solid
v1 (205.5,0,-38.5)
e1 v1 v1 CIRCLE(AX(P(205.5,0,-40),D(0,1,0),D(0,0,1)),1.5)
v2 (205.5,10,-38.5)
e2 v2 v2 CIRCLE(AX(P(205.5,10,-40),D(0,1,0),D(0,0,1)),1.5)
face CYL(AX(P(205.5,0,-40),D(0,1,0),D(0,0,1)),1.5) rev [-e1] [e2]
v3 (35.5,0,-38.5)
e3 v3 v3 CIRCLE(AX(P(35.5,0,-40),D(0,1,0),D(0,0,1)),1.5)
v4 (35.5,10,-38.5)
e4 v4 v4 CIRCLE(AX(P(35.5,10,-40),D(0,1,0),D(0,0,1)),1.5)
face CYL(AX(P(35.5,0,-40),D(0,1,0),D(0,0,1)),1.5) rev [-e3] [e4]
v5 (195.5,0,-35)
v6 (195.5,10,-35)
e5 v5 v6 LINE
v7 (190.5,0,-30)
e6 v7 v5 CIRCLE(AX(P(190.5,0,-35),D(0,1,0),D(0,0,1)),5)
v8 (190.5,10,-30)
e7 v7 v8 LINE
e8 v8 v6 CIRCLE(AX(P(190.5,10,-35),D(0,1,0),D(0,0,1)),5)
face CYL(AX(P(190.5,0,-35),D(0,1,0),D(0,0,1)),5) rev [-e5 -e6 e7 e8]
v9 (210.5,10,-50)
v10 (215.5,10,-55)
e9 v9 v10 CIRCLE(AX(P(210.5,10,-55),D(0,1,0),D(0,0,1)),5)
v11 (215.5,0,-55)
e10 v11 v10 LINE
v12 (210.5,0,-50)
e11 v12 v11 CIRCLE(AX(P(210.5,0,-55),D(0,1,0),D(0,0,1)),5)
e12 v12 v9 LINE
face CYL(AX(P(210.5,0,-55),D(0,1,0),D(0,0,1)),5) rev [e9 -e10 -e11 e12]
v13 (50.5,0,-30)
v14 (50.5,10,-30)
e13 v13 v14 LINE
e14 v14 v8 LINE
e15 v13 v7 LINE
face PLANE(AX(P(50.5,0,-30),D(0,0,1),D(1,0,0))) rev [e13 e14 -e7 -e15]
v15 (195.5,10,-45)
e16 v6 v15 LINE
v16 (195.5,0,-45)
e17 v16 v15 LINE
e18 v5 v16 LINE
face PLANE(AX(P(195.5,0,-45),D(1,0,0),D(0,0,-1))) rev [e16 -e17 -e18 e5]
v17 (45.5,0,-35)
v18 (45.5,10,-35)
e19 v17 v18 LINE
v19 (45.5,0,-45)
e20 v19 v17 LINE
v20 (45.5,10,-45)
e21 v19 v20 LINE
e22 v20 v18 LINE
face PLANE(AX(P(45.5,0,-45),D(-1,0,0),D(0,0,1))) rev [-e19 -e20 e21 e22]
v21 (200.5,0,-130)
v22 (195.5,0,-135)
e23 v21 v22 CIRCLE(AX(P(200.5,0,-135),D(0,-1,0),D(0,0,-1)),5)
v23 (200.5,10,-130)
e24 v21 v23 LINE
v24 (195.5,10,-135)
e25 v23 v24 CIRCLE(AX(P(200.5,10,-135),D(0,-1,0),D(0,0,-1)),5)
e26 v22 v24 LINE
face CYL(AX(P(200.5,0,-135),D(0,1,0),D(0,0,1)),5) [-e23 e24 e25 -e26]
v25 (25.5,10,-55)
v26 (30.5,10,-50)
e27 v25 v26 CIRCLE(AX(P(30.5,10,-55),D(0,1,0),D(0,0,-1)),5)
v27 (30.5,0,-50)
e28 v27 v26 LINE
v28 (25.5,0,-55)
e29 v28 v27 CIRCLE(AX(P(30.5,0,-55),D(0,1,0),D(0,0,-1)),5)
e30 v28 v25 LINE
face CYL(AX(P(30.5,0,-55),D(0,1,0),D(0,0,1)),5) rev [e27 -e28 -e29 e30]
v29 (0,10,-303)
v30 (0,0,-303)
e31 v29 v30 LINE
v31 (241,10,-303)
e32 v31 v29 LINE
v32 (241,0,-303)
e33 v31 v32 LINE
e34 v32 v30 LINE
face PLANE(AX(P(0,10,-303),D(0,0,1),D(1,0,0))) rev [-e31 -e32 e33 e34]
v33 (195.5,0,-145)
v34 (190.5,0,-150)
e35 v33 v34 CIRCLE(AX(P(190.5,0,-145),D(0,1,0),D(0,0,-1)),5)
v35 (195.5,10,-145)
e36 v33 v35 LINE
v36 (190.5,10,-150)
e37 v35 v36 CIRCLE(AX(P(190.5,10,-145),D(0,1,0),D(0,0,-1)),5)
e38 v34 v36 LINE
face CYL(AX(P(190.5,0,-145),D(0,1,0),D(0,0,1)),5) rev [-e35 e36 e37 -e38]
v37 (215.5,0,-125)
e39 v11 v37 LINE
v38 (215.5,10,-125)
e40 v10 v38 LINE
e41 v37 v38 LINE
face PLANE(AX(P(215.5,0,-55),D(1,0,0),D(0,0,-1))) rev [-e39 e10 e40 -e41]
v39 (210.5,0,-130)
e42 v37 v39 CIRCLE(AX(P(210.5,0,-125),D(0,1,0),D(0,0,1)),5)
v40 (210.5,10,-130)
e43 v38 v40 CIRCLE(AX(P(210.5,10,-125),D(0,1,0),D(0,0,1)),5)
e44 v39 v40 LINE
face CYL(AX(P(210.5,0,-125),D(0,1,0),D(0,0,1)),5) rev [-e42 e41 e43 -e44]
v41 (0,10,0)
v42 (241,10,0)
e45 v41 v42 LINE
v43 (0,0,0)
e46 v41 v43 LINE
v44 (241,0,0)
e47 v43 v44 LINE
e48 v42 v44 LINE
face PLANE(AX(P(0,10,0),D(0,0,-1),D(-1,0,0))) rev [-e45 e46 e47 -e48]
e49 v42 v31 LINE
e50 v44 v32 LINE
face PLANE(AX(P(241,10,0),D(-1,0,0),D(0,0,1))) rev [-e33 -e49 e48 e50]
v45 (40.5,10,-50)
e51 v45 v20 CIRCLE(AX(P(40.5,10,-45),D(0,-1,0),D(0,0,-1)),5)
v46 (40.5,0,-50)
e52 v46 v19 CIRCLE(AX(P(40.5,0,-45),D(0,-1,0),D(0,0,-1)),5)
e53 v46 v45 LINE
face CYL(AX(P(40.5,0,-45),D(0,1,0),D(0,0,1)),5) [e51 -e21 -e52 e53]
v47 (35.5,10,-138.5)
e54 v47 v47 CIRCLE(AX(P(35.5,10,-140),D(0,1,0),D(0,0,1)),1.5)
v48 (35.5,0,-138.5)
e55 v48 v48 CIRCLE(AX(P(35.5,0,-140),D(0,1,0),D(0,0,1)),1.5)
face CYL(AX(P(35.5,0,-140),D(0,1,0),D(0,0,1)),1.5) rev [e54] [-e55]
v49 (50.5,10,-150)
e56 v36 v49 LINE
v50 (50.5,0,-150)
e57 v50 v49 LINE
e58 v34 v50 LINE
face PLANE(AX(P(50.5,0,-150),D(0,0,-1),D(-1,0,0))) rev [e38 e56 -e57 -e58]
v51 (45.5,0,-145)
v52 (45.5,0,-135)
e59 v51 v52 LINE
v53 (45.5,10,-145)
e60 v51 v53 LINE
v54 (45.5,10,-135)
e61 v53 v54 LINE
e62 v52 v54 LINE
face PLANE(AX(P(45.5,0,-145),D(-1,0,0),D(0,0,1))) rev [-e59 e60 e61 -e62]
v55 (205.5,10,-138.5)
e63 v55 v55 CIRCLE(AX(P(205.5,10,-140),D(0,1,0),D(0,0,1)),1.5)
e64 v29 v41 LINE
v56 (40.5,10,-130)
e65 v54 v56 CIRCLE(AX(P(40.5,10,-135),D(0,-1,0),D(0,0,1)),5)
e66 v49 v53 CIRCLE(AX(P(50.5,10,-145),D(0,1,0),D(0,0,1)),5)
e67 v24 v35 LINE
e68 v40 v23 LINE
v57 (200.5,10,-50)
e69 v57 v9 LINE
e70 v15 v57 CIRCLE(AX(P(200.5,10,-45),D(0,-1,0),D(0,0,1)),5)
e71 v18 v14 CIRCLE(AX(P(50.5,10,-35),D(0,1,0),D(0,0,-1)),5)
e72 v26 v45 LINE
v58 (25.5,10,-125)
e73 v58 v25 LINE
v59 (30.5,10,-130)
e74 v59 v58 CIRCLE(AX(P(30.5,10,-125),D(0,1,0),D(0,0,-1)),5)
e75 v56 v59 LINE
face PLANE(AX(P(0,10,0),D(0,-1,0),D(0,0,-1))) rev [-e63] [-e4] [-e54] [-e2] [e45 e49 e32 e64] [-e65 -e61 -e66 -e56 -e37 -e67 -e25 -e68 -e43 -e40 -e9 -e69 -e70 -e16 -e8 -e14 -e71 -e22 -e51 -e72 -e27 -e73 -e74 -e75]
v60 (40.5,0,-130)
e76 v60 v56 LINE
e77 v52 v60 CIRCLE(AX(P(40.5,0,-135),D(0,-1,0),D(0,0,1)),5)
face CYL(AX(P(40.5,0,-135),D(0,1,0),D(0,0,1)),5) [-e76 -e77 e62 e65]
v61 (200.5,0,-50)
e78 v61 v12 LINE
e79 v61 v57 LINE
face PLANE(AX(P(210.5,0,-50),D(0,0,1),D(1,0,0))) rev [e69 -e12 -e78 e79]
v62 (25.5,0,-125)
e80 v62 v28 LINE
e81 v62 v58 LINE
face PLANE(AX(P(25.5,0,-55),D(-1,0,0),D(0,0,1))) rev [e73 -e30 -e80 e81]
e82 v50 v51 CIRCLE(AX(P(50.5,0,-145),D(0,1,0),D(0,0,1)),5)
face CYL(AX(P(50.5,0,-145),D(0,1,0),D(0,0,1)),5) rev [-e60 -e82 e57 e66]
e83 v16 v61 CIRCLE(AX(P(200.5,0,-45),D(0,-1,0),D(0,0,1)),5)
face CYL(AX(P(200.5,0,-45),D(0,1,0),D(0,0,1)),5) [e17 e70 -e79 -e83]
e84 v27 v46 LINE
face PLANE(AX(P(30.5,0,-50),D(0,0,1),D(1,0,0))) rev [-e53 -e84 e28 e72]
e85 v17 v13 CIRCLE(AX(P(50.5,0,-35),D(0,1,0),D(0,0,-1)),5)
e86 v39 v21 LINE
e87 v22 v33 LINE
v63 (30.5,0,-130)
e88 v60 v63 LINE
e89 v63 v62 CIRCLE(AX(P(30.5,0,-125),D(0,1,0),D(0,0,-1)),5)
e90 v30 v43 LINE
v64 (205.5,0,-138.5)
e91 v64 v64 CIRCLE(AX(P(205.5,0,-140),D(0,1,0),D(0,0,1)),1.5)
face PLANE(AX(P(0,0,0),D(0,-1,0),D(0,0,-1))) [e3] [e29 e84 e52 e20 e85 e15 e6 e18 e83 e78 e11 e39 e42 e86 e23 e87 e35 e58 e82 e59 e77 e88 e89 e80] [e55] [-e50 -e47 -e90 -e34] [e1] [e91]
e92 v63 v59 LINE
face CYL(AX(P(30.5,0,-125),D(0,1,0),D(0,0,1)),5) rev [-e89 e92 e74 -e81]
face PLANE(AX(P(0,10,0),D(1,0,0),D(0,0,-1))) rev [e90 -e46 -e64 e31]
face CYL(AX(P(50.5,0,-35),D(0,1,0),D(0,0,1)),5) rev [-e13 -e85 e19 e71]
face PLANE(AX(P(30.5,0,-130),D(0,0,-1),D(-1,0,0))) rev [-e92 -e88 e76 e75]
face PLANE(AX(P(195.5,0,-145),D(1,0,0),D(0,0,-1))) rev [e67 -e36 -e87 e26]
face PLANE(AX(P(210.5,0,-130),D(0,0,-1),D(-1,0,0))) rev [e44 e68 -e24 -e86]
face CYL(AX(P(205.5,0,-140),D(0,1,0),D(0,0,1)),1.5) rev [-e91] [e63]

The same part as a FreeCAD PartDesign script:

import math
import FreeCAD as App
import Part
import Sketcher

V = App.Vector
Q = App.Units.Quantity


def add_polygon(sketch, points):
    """Adds a closed chain of lines whose ends are joined by coincident constraints."""
    first, n = sketch.GeometryCount, len(points)
    for a, b in zip(points, points[1:] + points[:1]):
        sketch.addGeometry(Part.LineSegment(App.Vector(*a, 0), App.Vector(*b, 0)), False)
    for i in range(n):
        sketch.addConstraint(Sketcher.Constraint("Coincident", first + i, 2, first + (i + 1) % n, 1))

doc = App.newDocument("Part")
body = doc.addObject("PartDesign::Body", "Body")

# Sketch on XZ plane
sketch1 = doc.addObject("Sketcher::SketchObject", "Sketch")
body.addObject(sketch1)
sketch1.AttachmentSupport = (doc.XZ_Plane, [""])
sketch1.MapMode = "FlatFace"
add_polygon(sketch1, [(0, -303), (0, 0), (241, 0), (241, -303)])  # lines 0-3
sketch1.addConstraint(Sketcher.Constraint("Vertical", 0))
sketch1.addConstraint(Sketcher.Constraint("Horizontal", 1))
sketch1.addConstraint(Sketcher.Constraint("Vertical", 2))
sketch1.addConstraint(Sketcher.Constraint("Horizontal", 3))
sketch1.addConstraint(Sketcher.Constraint("Coincident", 0, 2, -1, 1))
sketch1.addConstraint(Sketcher.Constraint("DistanceX", 1, 1, 1, 2, Q("241 mm")))
sketch1.addConstraint(Sketcher.Constraint("DistanceY", 0, 1, 0, 2, Q("303 mm")))
pad1 = doc.addObject("PartDesign::Pad", "Pad")
body.addObject(pad1)
pad1.Profile = sketch1
pad1.Length = 10
pad1.Reversed = True

# Sketch on XZ plane
sketch2 = doc.addObject("Sketcher::SketchObject", "Sketch001")
body.addObject(sketch2)
sketch2.AttachmentSupport = (doc.XZ_Plane, [""])
sketch2.MapMode = "FlatFace"
sketch2.AttachmentOffset = App.Placement(V(0, 0, -10), App.Rotation())
sketch2.addGeometry(Part.LineSegment(V(190, -150, 0), V(50, -150, 0)), False)
sketch2.addGeometry(Part.ArcOfCircle(Part.Circle(V(50, -145, 0), V(0, 0, 1), 5), math.radians(180), math.radians(270)), False)
sketch2.addGeometry(Part.LineSegment(V(46, -145, 0), V(46, -135, 0)), False)
sketch2.addGeometry(Part.ArcOfCircle(Part.Circle(V(40, -135, 0), V(0, 0, 1), 5), math.radians(0), math.radians(90)), False)
sketch2.addGeometry(Part.LineSegment(V(40, -130, 0), V(30, -130, 0)), False)
sketch2.addGeometry(Part.ArcOfCircle(Part.Circle(V(30, -125, 0), V(0, 0, 1), 5), math.radians(180), math.radians(270)), False)
sketch2.addGeometry(Part.LineSegment(V(26, -125, 0), V(26, -55, 0)), False)
sketch2.addGeometry(Part.ArcOfCircle(Part.Circle(V(30, -55, 0), V(0, 0, 1), 5), math.radians(90), math.radians(180)), False)
sketch2.addGeometry(Part.LineSegment(V(30, -50, 0), V(40, -50, 0)), False)
sketch2.addGeometry(Part.ArcOfCircle(Part.Circle(V(40, -45, 0), V(0, 0, 1), 5), math.radians(-90), math.radians(0)), False)
sketch2.addGeometry(Part.LineSegment(V(46, -45, 0), V(46, -35, 0)), False)
sketch2.addGeometry(Part.ArcOfCircle(Part.Circle(V(50, -35, 0), V(0, 0, 1), 5), math.radians(90), math.radians(180)), False)
sketch2.addGeometry(Part.LineSegment(V(50, -30, 0), V(190, -30, 0)), False)
sketch2.addGeometry(Part.ArcOfCircle(Part.Circle(V(190, -35, 0), V(0, 0, 1), 5), math.radians(0), math.radians(90)), False)
sketch2.addGeometry(Part.LineSegment(V(196, -35, 0), V(196, -45, 0)), False)
sketch2.addGeometry(Part.ArcOfCircle(Part.Circle(V(200, -45, 0), V(0, 0, 1), 5), math.radians(180), math.radians(270)), False)
sketch2.addGeometry(Part.LineSegment(V(200, -50, 0), V(210, -50, 0)), False)
sketch2.addGeometry(Part.ArcOfCircle(Part.Circle(V(210, -55, 0), V(0, 0, 1), 5), math.radians(0), math.radians(90)), False)
sketch2.addGeometry(Part.LineSegment(V(216, -55, 0), V(216, -125, 0)), False)
sketch2.addGeometry(Part.ArcOfCircle(Part.Circle(V(210, -125, 0), V(0, 0, 1), 5), math.radians(-90), math.radians(0)), False)
sketch2.addGeometry(Part.LineSegment(V(210, -130, 0), V(200, -130, 0)), False)
sketch2.addGeometry(Part.ArcOfCircle(Part.Circle(V(200, -135, 0), V(0, 0, 1), 5), math.radians(90), math.radians(180)), False)
sketch2.addGeometry(Part.LineSegment(V(196, -135, 0), V(196, -145, 0)), False)
sketch2.addGeometry(Part.ArcOfCircle(Part.Circle(V(190, -145, 0), V(0, 0, 1), 5), math.radians(-90), math.radians(0)), False)
sketch2.addConstraint(Sketcher.Constraint("Tangent", 0, 2, 1, 2))
sketch2.addConstraint(Sketcher.Constraint("Tangent", 1, 1, 2, 1))
sketch2.addConstraint(Sketcher.Constraint("Tangent", 2, 2, 3, 1))
sketch2.addConstraint(Sketcher.Constraint("Tangent", 3, 2, 4, 1))
sketch2.addConstraint(Sketcher.Constraint("Tangent", 4, 2, 5, 2))
sketch2.addConstraint(Sketcher.Constraint("Tangent", 5, 1, 6, 1))
sketch2.addConstraint(Sketcher.Constraint("Tangent", 6, 2, 7, 2))
sketch2.addConstraint(Sketcher.Constraint("Tangent", 7, 1, 8, 1))
sketch2.addConstraint(Sketcher.Constraint("Tangent", 8, 2, 9, 1))
sketch2.addConstraint(Sketcher.Constraint("Tangent", 9, 2, 10, 1))
sketch2.addConstraint(Sketcher.Constraint("Tangent", 10, 2, 11, 2))
sketch2.addConstraint(Sketcher.Constraint("Tangent", 11, 1, 12, 1))
sketch2.addConstraint(Sketcher.Constraint("Tangent", 12, 2, 13, 2))
sketch2.addConstraint(Sketcher.Constraint("Tangent", 13, 1, 14, 1))
sketch2.addConstraint(Sketcher.Constraint("Tangent", 14, 2, 15, 1))
sketch2.addConstraint(Sketcher.Constraint("Tangent", 15, 2, 16, 1))
sketch2.addConstraint(Sketcher.Constraint("Tangent", 16, 2, 17, 2))
sketch2.addConstraint(Sketcher.Constraint("Tangent", 17, 1, 18, 1))
sketch2.addConstraint(Sketcher.Constraint("Tangent", 18, 2, 19, 2))
sketch2.addConstraint(Sketcher.Constraint("Tangent", 19, 1, 20, 1))
sketch2.addConstraint(Sketcher.Constraint("Tangent", 20, 2, 21, 1))
sketch2.addConstraint(Sketcher.Constraint("Tangent", 21, 2, 22, 1))
sketch2.addConstraint(Sketcher.Constraint("Tangent", 22, 2, 23, 2))
sketch2.addConstraint(Sketcher.Constraint("Tangent", 23, 1, 0, 1))
sketch2.addConstraint(Sketcher.Constraint("Horizontal", 0))
sketch2.addConstraint(Sketcher.Constraint("Vertical", 2))
sketch2.addConstraint(Sketcher.Constraint("Horizontal", 4))
sketch2.addConstraint(Sketcher.Constraint("Vertical", 6))
sketch2.addConstraint(Sketcher.Constraint("Horizontal", 8))
sketch2.addConstraint(Sketcher.Constraint("Vertical", 10))
sketch2.addConstraint(Sketcher.Constraint("Horizontal", 12))
sketch2.addConstraint(Sketcher.Constraint("Vertical", 14))
sketch2.addConstraint(Sketcher.Constraint("Horizontal", 16))
sketch2.addConstraint(Sketcher.Constraint("Vertical", 18))
sketch2.addConstraint(Sketcher.Constraint("Horizontal", 20))
sketch2.addConstraint(Sketcher.Constraint("Vertical", 22))
sketch2.addConstraint(Sketcher.Constraint("Equal", 1, 3))
sketch2.addConstraint(Sketcher.Constraint("Equal", 3, 5))
sketch2.addConstraint(Sketcher.Constraint("Equal", 5, 7))
sketch2.addConstraint(Sketcher.Constraint("Equal", 7, 9))
sketch2.addConstraint(Sketcher.Constraint("Equal", 9, 11))
sketch2.addConstraint(Sketcher.Constraint("Equal", 11, 13))
sketch2.addConstraint(Sketcher.Constraint("Equal", 13, 15))
sketch2.addConstraint(Sketcher.Constraint("Equal", 15, 17))
sketch2.addConstraint(Sketcher.Constraint("Equal", 17, 19))
sketch2.addConstraint(Sketcher.Constraint("Equal", 19, 21))
sketch2.addConstraint(Sketcher.Constraint("Equal", 21, 23))
sketch2.addConstraint(Sketcher.Constraint("Horizontal", 9, 3, 15, 3))
sketch2.addConstraint(Sketcher.Constraint("Horizontal", 5, 3, 19, 3))
sketch2.addConstraint(Sketcher.Constraint("Vertical", 3, 3, 9, 3))
sketch2.addConstraint(Sketcher.Constraint("Vertical", 15, 3, 21, 3))
sketch2.addConstraint(Sketcher.Constraint("Equal", 8, 16))
sketch2.addConstraint(Sketcher.Constraint("Equal", 20, 2))
sketch2.addConstraint(Sketcher.Constraint("Equal", 2, 10))
sketch2.addConstraint(Sketcher.Constraint("Radius", 1, Q("5 mm")))
sketch2.addConstraint(Sketcher.Constraint("DistanceX", 0, 2, 0, 1, Q("140 mm")))
sketch2.addConstraint(Sketcher.Constraint("DistanceX", 4, 2, 4, 1, Q("10 mm")))
sketch2.addConstraint(Sketcher.Constraint("DistanceY", 6, 1, 6, 2, Q("70 mm")))
sketch2.addConstraint(Sketcher.Constraint("DistanceY", 1, 3, -1, 1, Q("145 mm")))
sketch2.addConstraint(Sketcher.Constraint("DistanceX", -1, 1, 1, 3, Q("50.5 mm")))
pocket1 = doc.addObject("PartDesign::Pocket", "Pocket")
body.addObject(pocket1)
pocket1.Profile = sketch2
pocket1.Type = "ThroughAll"
pocket1.Reversed = True

# Sketch on XZ plane
sketch3 = doc.addObject("Sketcher::SketchObject", "Sketch002")
body.addObject(sketch3)
sketch3.AttachmentSupport = (doc.XZ_Plane, [""])
sketch3.MapMode = "FlatFace"
sketch3.AttachmentOffset = App.Placement(V(0, 0, -10), App.Rotation())
sketch3.addGeometry(Part.Circle(V(205.5, -140, 0), V(0, 0, 1), 1.5), False)
sketch3.addGeometry(Part.Circle(V(35.5, -140, 0), V(0, 0, 1), 1.5), False)
sketch3.addGeometry(Part.Circle(V(35.5, -40, 0), V(0, 0, 1), 1.5), False)
sketch3.addGeometry(Part.Circle(V(205.5, -40, 0), V(0, 0, 1), 1.5), False)
sketch3.addConstraint(Sketcher.Constraint("Equal", 0, 1))
sketch3.addConstraint(Sketcher.Constraint("Equal", 1, 2))
sketch3.addConstraint(Sketcher.Constraint("Equal", 2, 3))
sketch3.addConstraint(Sketcher.Constraint("Horizontal", 0, 3, 1, 3))
sketch3.addConstraint(Sketcher.Constraint("Horizontal", 2, 3, 3, 3))
sketch3.addConstraint(Sketcher.Constraint("Vertical", 1, 3, 2, 3))
sketch3.addConstraint(Sketcher.Constraint("Vertical", 0, 3, 3, 3))
sketch3.addConstraint(Sketcher.Constraint("Diameter", 0, Q("3 mm")))
sketch3.addConstraint(Sketcher.Constraint("DistanceY", 0, 3, -1, 1, Q("140 mm")))
sketch3.addConstraint(Sketcher.Constraint("DistanceY", 2, 3, -1, 1, Q("40 mm")))
sketch3.addConstraint(Sketcher.Constraint("DistanceX", 1, 3, 0, 3, Q("170 mm")))
sketch3.addConstraint(Sketcher.Constraint("DistanceX", -1, 1, 0, 3, Q("205.5 mm")))
pocket2 = doc.addObject("PartDesign::Pocket", "Pocket001")
body.addObject(pocket2)
pocket2.Profile = sketch3
pocket2.Length = 10
pocket2.Reversed = True

doc.recompute()
